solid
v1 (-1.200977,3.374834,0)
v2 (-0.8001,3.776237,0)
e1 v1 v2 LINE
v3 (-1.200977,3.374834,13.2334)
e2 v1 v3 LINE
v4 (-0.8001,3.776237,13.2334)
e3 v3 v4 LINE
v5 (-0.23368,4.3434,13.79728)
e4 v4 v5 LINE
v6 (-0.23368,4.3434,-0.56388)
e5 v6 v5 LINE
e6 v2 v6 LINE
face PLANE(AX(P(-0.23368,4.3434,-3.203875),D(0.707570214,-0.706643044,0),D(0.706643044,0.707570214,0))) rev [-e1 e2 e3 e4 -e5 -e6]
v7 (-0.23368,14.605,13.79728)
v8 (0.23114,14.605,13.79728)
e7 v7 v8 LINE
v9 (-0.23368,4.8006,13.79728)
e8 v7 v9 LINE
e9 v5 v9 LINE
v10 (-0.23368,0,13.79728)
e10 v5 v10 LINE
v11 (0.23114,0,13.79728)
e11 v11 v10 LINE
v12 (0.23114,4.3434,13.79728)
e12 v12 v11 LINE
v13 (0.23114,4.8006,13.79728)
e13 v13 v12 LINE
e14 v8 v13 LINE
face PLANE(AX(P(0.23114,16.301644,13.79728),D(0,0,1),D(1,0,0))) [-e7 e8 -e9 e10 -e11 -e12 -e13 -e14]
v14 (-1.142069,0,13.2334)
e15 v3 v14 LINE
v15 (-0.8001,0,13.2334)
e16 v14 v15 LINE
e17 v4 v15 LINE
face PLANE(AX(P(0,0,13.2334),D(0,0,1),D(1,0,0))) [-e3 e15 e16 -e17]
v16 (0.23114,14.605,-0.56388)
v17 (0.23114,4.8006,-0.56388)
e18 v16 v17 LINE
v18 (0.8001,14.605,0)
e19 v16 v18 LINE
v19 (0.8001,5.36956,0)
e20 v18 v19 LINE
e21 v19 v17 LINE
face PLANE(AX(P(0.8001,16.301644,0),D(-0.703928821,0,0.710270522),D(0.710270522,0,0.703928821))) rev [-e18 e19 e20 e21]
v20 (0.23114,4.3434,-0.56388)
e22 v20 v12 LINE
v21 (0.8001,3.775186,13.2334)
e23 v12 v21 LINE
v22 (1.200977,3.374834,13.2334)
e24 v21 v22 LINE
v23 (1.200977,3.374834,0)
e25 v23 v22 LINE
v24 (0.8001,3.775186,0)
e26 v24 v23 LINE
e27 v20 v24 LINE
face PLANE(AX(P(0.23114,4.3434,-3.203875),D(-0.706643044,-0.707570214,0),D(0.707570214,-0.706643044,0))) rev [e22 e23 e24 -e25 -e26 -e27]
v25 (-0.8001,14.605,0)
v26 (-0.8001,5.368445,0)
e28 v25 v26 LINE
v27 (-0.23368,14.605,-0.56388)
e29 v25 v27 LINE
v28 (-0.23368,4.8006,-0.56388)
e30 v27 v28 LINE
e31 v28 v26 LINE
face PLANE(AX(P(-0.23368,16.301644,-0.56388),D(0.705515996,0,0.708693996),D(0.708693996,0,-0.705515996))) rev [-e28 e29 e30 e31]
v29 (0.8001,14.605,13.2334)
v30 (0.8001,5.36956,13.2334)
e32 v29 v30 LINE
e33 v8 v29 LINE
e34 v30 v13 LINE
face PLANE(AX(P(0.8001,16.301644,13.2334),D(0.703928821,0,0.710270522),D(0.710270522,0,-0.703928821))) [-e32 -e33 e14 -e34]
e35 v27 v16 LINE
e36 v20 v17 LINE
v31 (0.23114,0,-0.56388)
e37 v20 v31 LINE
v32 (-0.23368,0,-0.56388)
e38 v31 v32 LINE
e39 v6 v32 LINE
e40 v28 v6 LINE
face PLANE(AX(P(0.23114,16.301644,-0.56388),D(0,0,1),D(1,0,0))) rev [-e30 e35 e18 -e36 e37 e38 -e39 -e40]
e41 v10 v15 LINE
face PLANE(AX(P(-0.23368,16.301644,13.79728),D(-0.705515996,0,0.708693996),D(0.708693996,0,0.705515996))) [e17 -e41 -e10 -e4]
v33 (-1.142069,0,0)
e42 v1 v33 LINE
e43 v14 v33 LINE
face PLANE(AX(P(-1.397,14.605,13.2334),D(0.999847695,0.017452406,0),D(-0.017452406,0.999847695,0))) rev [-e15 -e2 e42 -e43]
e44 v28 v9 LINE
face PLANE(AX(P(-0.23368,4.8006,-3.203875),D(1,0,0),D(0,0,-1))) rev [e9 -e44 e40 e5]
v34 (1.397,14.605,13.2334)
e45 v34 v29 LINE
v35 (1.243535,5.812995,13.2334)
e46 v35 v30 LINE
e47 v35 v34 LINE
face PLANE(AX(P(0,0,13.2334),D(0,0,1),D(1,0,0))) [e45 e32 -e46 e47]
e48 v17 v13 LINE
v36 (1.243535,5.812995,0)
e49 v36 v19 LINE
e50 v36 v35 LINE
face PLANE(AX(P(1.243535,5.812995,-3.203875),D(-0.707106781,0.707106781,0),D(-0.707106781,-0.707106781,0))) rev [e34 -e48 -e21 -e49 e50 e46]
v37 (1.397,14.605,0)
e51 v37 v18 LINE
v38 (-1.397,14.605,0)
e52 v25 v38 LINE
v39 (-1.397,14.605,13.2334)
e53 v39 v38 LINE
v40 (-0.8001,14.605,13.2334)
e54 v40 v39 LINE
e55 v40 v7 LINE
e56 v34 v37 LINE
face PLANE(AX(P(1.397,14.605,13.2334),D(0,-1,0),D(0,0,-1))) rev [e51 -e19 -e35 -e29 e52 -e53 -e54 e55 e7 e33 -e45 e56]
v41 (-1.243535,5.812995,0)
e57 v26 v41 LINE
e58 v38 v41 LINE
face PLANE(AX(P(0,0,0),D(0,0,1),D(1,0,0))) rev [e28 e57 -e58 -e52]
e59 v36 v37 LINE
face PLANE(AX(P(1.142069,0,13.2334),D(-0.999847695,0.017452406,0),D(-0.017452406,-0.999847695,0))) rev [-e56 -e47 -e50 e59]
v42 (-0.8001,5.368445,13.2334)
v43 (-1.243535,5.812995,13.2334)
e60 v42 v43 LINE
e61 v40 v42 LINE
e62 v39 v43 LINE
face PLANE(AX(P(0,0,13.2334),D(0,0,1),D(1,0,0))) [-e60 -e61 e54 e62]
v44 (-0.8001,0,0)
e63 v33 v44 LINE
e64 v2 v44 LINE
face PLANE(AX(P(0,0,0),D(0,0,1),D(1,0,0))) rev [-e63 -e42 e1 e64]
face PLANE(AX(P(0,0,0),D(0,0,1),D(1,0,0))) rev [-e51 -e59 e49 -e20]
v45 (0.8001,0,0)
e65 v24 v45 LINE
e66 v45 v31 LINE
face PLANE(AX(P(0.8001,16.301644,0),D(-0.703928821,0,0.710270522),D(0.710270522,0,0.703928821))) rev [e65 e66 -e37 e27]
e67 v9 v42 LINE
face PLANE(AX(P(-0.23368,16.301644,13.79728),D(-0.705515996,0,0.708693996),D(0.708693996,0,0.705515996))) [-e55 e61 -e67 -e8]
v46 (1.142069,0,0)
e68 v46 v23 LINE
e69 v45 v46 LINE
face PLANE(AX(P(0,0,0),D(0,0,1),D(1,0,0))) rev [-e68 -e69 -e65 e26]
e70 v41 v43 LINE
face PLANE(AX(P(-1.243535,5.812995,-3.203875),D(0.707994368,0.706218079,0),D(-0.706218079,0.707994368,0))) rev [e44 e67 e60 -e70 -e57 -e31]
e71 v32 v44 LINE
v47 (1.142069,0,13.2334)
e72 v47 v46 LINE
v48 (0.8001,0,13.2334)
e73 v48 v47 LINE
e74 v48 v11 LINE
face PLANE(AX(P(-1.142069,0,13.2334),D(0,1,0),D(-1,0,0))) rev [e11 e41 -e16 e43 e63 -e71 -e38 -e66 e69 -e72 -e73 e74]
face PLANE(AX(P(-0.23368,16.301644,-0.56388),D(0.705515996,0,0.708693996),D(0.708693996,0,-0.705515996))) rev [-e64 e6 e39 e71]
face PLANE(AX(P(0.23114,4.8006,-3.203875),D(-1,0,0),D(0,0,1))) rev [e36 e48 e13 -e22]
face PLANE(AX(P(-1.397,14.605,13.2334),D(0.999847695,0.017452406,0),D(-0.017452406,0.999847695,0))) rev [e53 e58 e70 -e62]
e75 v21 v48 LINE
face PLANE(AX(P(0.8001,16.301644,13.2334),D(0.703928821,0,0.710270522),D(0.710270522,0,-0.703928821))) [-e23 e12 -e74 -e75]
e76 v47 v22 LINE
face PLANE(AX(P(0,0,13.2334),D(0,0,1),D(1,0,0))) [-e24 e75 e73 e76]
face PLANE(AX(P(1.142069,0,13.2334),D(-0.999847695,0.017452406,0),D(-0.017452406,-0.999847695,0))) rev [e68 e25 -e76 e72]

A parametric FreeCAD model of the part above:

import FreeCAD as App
import Part
import Sketcher
Q = App.Units.Quantity


def add_polygon(sketch, points):
    """Adds a closed chain of lines whose ends are joined by coincident constraints."""
    first, n = sketch.GeometryCount, len(points)
    for a, b in zip(points, points[1:] + points[:1]):
        sketch.addGeometry(Part.LineSegment(App.Vector(*a, 0), App.Vector(*b, 0)), False)
    for i in range(n):
        sketch.addConstraint(Sketcher.Constraint("Coincident", first + i, 2, first + (i + 1) % n, 1))

doc = App.newDocument("Part")
body = doc.addObject("PartDesign::Body", "Body")

# Sketch on XY plane
sketch1 = body.newObject("Sketcher::SketchObject", "Sketch")
sketch1.AttachmentSupport = (doc.getObject("XY_Plane"), [""])
sketch1.MapMode = "FlatFace"
add_polygon(sketch1, [(-1.142069, 0), (1.142069, 0), (1.397, 14.605), (-1.397, 14.605)])  # lines 0-3
sketch1.addConstraint([
    Sketcher.Constraint("Horizontal", 0),
    Sketcher.Constraint("Horizontal", 2),
    Sketcher.Constraint("Symmetric", 0, 2, 3, 2, -1, 1),
    Sketcher.Constraint("Equal", 1, 3),
    Sketcher.Constraint("Angle", 1, Q("89 deg")),
    Sketcher.Constraint("DistanceX", 2, 2, 2, 1, Q("0.11 in")),
    Sketcher.Constraint("DistanceY", -1, 1, 1, 2, Q("0.575 in")),
])
pad1 = body.newObject("PartDesign::Pad", "Pad")
pad1.Profile = sketch1
pad1.Length = Q("0.521 in")

# Sketch on XZ plane
sketch2 = body.newObject("Sketcher::SketchObject", "Sketch001")
sketch2.AttachmentSupport = (doc.getObject("XZ_Plane"), [""])
sketch2.MapMode = "FlatFace"
add_polygon(sketch2, [(-0.8001, 13.2334), (0.8001, 13.2334), (0.23114, 13.79728), (-0.23368, 13.79728)])  # lines 0-3
sketch2.addConstraint([
    Sketcher.Constraint("Horizontal", 0),
    Sketcher.Constraint("Horizontal", 2),
    Sketcher.Constraint("DistanceX", 0, 1, 0, 2, Q("0.063 in")),
    Sketcher.Constraint("DistanceX", 2, 2, 2, 1, Q("0.0183 in")),
    Sketcher.Constraint("DistanceY", -1, 1, 0, 2, Q("0.521 in")),
    Sketcher.Constraint("DistanceX", -1, 1, 0, 2, Q("0.0315 in")),
    Sketcher.Constraint("DistanceX", -1, 1, 1, 2, Q("0.0091 in")),
    Sketcher.Constraint("DistanceY", -1, 1, 1, 2, Q("0.5432 in")),
])
pad2 = body.newObject("PartDesign::Pad", "Pad001")
pad2.Profile = sketch2
pad2.Length = Q("0.575 in")
pad2.Reversed = True
doc.recompute()

datumplane = body.newObject("PartDesign::Plane", "DatumPlane")
datumplane.AttachmentSupport = (doc.getObject("XY_Plane"), [""])
datumplane.MapMode = "FlatFace"
datumplane.AttachmentOffset = App.Placement(App.Vector(0, 0, 0.2605 * 25.4), App.Rotation())
mirrored = body.newObject("PartDesign::Mirrored", "Mirrored")
mirrored.Originals = [pad2]
mirrored.MirrorPlane = (datumplane, [""])
body.Tip = mirrored

# Sketch on XY plane
sketch3 = body.newObject("Sketcher::SketchObject", "Sketch002")
sketch3.AttachmentSupport = (doc.getObject("XY_Plane"), [""])
sketch3.MapMode = "FlatFace"
sketch3.AttachmentOffset = App.Placement(App.Vector(0, 0, 0.5432 * 25.4), App.Rotation())
add_polygon(sketch3, [(-0.23368, 4.8006), (-1.243535, 5.812995), (-1.200977, 3.374834), (-0.23368, 4.3434)])  # lines 0-3
add_polygon(sketch3, [(1.243535, 5.812995), (0.23114, 4.8006), (0.23114, 4.3434), (1.200977, 3.374834)])  # lines 4-7
sketch3.addConstraint([
    Sketcher.Constraint("Vertical", 3),
    Sketcher.Constraint("Vertical", 5),
    Sketcher.Constraint("Symmetric", 1, 2, 6, 2, -2),
    Sketcher.Constraint("Symmetric", 0, 2, 7, 2, -2),
    Sketcher.Constraint("Perpendicular", 2, 6),
    Sketcher.Constraint("Horizontal", 3, 2, 4, 2),
    Sketcher.Constraint("Horizontal", 2, 2, 5, 2),
    Sketcher.Constraint("Angle", 1, Q("-89 deg")),
    Sketcher.Constraint("Angle", 4, Q("-135 deg")),
    Sketcher.Constraint("DistanceY", 3, 1, 3, 2, Q("0.018 in")),
    Sketcher.Constraint("DistanceY", -1, 1, 2, 2, Q("0.171 in")),
    Sketcher.Constraint("DistanceX", 2, 2, -1, 1, Q("0.0092 in")),
    Sketcher.Constraint("DistanceX", -1, 1, 4, 2, Q("0.0091 in")),
    Sketcher.Constraint("Distance", 2, Q("1.368862 mm")),
])
pocket1 = body.newObject("PartDesign::Pocket", "Pocket")
pocket1.Profile = sketch3
pocket1.Length = Q("0.5654 in")

doc.recompute()
